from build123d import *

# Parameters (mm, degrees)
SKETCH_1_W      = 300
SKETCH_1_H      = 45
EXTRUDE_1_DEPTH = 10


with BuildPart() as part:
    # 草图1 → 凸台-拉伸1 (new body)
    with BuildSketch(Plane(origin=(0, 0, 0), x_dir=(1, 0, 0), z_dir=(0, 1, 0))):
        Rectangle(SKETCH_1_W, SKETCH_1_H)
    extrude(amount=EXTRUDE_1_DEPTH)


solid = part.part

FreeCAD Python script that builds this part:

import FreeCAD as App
import Part
import Sketcher

doc = App.newDocument("Part")
body = doc.addObject("PartDesign::Body", "Body")

# Sketch on XZ plane
sketch1 = body.newObject("Sketcher::SketchObject", "Sketch")
sketch1.AttachmentSupport = (doc.getObject("XZ_Plane"), [""])
sketch1.MapMode = "FlatFace"
sketch1.addGeometry([
    Part.LineSegment(App.Vector(-150, -22, 0), App.Vector(-150, 22, 0)),
    Part.LineSegment(App.Vector(-150, 22, 0), App.Vector(150, 22, 0)),
    Part.LineSegment(App.Vector(150, 22, 0), App.Vector(150, -22, 0)),
    Part.LineSegment(App.Vector(150, -22, 0), App.Vector(-150, -22, 0)),
], False)
sketch1.addConstraint([
    Sketcher.Constraint("Coincident", 0, 2, 1, 1),
    Sketcher.Constraint("Coincident", 1, 2, 2, 1),
    Sketcher.Constraint("Coincident", 2, 2, 3, 1),
    Sketcher.Constraint("Coincident", 3, 2, 0, 1),
    Sketcher.Constraint("Vertical", 0),
    Sketcher.Constraint("Horizontal", 1),
    Sketcher.Constraint("Vertical", 2),
    Sketcher.Constraint("Horizontal", 3),
    Sketcher.Constraint("Symmetric", 0, 2, 2, 2, -1, 1),
    Sketcher.Constraint("DistanceX", 1, 1, 1, 2, 300.0),
    Sketcher.Constraint("DistanceY", 0, 1, 0, 2, 45.0),
])
pad1 = body.newObject("PartDesign::Pad", "Pad")
pad1.Profile = sketch1
pad1.Length = 10
pad1.Reversed = True

doc.recompute()
